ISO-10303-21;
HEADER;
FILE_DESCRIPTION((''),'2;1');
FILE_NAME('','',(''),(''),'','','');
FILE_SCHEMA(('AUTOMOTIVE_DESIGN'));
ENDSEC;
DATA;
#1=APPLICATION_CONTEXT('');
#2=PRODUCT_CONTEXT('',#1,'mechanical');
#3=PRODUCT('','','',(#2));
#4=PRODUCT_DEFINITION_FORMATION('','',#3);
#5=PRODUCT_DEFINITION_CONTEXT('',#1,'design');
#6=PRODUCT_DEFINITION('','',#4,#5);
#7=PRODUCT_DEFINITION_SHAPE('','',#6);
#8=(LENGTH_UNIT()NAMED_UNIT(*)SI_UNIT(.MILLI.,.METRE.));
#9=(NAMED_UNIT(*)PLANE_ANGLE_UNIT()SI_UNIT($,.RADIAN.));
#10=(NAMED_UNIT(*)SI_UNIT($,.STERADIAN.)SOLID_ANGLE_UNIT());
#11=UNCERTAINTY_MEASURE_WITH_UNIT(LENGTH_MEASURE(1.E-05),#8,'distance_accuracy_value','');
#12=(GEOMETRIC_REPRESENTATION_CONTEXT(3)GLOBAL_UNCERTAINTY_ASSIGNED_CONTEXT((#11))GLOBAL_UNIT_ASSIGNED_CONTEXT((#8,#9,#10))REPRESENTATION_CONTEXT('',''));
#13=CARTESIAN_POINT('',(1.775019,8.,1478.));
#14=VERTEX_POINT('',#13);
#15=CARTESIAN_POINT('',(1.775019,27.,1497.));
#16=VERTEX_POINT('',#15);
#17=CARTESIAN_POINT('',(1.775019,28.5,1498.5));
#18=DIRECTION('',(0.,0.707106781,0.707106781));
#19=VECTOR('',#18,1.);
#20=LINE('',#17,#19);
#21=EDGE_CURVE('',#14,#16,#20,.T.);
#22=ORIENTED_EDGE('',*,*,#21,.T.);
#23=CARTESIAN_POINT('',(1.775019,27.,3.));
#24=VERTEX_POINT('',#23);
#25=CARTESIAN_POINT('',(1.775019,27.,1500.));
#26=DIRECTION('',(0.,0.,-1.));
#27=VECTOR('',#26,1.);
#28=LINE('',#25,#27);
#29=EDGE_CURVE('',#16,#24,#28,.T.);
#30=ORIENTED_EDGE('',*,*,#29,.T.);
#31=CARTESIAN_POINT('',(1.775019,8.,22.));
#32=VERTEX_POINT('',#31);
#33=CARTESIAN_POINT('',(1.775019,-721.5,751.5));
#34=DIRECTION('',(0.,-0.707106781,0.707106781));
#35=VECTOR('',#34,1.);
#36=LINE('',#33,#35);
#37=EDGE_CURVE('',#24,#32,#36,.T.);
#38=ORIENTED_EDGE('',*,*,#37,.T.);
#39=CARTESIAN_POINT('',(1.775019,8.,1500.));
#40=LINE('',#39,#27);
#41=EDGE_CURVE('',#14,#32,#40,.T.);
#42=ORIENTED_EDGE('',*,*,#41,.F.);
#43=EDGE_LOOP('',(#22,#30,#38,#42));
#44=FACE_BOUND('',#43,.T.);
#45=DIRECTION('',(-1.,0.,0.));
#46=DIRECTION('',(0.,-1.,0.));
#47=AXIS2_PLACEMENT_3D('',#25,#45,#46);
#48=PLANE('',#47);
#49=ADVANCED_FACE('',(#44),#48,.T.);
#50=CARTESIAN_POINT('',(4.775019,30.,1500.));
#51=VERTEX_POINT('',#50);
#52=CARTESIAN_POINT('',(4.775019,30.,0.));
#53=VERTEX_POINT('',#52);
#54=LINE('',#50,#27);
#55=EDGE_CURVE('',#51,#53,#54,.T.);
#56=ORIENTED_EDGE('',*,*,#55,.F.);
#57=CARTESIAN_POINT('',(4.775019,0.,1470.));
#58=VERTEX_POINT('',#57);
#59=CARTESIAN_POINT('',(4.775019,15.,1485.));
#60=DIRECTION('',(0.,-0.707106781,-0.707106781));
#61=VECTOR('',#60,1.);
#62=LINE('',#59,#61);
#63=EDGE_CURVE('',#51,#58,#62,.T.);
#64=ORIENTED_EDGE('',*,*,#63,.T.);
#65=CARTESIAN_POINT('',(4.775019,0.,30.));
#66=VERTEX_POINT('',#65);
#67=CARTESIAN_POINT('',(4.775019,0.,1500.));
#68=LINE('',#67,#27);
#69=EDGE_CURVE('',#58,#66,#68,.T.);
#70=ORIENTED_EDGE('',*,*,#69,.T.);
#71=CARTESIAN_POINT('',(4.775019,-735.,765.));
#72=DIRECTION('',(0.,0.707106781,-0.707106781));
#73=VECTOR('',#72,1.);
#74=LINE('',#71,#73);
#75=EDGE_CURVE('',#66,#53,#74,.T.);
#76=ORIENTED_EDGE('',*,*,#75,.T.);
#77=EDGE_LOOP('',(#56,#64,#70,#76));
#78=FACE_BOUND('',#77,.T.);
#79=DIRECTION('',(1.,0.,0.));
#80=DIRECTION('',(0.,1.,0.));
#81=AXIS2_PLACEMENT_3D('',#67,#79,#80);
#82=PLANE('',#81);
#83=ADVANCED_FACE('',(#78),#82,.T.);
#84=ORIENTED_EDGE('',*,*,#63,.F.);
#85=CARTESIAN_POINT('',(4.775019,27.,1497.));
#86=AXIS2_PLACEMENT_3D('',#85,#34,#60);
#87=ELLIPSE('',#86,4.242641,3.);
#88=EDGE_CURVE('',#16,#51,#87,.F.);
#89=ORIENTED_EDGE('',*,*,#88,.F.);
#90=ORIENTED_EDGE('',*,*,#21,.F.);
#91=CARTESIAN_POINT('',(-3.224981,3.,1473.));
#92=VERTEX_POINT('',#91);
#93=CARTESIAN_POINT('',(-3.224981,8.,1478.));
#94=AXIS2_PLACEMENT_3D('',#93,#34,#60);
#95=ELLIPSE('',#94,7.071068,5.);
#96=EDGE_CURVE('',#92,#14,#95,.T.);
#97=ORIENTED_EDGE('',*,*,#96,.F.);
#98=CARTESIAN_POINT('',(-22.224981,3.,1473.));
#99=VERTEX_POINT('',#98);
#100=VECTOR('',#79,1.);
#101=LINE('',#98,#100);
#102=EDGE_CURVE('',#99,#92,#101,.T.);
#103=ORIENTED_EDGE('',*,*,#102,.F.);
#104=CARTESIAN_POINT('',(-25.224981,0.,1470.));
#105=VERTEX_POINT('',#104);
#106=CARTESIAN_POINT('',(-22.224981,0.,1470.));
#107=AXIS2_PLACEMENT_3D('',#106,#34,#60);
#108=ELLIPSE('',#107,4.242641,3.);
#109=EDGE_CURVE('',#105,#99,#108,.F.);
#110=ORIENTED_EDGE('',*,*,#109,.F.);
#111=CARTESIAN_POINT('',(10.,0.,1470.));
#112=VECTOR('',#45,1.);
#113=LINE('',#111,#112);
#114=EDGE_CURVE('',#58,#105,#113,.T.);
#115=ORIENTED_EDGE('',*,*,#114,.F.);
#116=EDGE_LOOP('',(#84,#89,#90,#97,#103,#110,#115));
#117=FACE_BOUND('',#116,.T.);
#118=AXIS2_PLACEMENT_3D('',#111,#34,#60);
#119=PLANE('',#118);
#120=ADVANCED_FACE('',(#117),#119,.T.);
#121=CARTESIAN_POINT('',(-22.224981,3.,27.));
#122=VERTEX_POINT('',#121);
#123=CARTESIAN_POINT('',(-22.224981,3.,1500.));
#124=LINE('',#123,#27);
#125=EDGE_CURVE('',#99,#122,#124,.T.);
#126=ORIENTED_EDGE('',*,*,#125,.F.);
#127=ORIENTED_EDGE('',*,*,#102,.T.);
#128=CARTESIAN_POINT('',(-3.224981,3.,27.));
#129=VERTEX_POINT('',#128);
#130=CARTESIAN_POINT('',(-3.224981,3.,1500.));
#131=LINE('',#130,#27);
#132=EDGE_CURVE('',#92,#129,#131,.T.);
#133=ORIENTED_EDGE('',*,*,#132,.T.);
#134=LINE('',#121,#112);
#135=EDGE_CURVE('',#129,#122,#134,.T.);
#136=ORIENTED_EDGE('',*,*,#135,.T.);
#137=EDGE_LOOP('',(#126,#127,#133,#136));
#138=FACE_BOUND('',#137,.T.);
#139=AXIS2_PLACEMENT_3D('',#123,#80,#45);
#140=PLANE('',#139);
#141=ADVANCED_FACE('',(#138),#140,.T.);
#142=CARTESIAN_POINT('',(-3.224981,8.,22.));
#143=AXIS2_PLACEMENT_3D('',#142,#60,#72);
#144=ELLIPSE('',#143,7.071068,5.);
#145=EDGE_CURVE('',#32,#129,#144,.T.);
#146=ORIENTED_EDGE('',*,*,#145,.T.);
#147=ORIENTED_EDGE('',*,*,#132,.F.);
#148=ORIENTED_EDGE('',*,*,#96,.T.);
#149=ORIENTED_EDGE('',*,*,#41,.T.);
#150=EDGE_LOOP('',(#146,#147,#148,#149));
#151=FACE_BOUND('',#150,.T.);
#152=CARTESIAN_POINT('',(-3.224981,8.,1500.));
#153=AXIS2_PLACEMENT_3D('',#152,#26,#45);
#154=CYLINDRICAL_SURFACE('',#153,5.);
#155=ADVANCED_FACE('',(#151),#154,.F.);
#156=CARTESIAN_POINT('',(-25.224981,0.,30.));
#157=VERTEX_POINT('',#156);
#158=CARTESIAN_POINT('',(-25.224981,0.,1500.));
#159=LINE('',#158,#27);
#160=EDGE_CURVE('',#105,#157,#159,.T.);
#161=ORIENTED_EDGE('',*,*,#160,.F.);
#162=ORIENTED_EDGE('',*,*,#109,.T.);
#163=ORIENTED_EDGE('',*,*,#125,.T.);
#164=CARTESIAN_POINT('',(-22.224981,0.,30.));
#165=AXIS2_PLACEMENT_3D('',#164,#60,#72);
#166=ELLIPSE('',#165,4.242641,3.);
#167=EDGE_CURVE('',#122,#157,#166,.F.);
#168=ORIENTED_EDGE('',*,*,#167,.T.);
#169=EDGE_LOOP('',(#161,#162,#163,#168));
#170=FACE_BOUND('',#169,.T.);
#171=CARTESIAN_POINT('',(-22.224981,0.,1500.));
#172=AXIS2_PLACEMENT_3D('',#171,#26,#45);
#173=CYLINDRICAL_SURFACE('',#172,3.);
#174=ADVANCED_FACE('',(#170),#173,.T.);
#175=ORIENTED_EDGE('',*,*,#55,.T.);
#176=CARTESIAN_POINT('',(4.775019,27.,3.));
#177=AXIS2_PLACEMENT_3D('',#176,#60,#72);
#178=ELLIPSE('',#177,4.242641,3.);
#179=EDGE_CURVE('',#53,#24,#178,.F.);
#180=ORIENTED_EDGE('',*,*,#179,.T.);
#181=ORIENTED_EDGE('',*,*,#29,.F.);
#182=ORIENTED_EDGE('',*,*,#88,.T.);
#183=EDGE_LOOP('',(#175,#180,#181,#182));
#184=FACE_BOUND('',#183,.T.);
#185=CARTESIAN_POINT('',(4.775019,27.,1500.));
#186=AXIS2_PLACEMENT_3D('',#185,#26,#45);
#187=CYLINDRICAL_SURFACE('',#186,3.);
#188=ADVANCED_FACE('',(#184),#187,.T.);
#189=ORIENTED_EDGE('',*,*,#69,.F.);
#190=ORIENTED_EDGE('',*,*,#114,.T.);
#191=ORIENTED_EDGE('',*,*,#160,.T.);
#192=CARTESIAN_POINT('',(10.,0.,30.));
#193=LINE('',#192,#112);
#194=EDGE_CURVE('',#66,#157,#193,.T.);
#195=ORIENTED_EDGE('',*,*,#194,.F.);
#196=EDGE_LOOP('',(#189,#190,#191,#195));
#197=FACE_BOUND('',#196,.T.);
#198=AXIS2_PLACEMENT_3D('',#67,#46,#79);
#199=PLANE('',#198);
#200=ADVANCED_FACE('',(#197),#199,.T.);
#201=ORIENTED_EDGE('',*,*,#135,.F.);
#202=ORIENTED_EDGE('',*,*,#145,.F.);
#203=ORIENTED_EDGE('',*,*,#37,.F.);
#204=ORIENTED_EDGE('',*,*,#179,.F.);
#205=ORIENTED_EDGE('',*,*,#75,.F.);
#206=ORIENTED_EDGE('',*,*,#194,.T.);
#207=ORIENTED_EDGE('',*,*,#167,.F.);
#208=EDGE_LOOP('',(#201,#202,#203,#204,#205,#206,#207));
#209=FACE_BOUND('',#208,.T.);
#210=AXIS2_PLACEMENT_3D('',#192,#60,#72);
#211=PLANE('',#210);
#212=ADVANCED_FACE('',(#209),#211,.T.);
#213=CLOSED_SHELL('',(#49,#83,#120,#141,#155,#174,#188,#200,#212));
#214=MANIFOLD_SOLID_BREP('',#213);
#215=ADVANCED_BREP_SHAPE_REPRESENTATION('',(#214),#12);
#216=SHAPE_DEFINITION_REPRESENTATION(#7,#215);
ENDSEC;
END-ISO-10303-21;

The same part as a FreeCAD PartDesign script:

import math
import FreeCAD as App
import Part
import Sketcher

V = App.Vector
Q = App.Units.Quantity


def add_polygon(sketch, points):
    """Adds a closed chain of lines whose ends are joined by coincident constraints."""
    first, n = sketch.GeometryCount, len(points)
    for a, b in zip(points, points[1:] + points[:1]):
        sketch.addGeometry(Part.LineSegment(App.Vector(*a, 0), App.Vector(*b, 0)), False)
    for i in range(n):
        sketch.addConstraint(Sketcher.Constraint("Coincident", first + i, 2, first + (i + 1) % n, 1))

doc = App.newDocument("Part")
body = doc.addObject("PartDesign::Body", "Body")

# Sketch on XY plane
sketch1 = body.newObject("Sketcher::SketchObject", "Sketch")
sketch1.AttachmentSupport = (doc.getObject("XY_Plane"), [""])
sketch1.MapMode = "FlatFace"
sketch1.addGeometry(Part.LineSegment(V(4.8, 30, 0), V(4.8, 0, 0)), False)
sketch1.addGeometry(Part.LineSegment(V(4.8, 0, 0), V(-25.2, 0, 0)), False)
sketch1.addGeometry(Part.ArcOfCircle(Part.Circle(V(-22.2, 0, 0), V(0, 0, 1), 3), math.radians(90), math.radians(180)), False)
sketch1.addGeometry(Part.LineSegment(V(-22.2, 3, 0), V(-3.2, 3, 0)), False)
sketch1.addGeometry(Part.ArcOfCircle(Part.Circle(V(-3.2, 8, 0), V(0, 0, 1), 5), math.radians(-90), math.radians(0)), False)
sketch1.addGeometry(Part.LineSegment(V(1.8, 8, 0), V(1.8, 27, 0)), False)
sketch1.addGeometry(Part.ArcOfCircle(Part.Circle(V(4.8, 27, 0), V(0, 0, 1), 3), math.radians(90), math.radians(180)), False)
sketch1.addConstraint(Sketcher.Constraint("Coincident", 0, 2, 1, 1))
sketch1.addConstraint(Sketcher.Constraint("Coincident", 1, 2, 2, 2))
sketch1.addConstraint(Sketcher.Constraint("Tangent", 2, 1, 3, 1))
sketch1.addConstraint(Sketcher.Constraint("Tangent", 3, 2, 4, 1))
sketch1.addConstraint(Sketcher.Constraint("Tangent", 4, 2, 5, 1))
sketch1.addConstraint(Sketcher.Constraint("Tangent", 5, 2, 6, 2))
sketch1.addConstraint(Sketcher.Constraint("Coincident", 6, 1, 0, 1))
sketch1.addConstraint(Sketcher.Constraint("Vertical", 0))
sketch1.addConstraint(Sketcher.Constraint("Horizontal", 1))
sketch1.addConstraint(Sketcher.Constraint("Horizontal", 3))
sketch1.addConstraint(Sketcher.Constraint("Vertical", 5))
sketch1.addConstraint(Sketcher.Constraint("Equal", 2, 6))
sketch1.addConstraint(Sketcher.Constraint("PointOnObject", 2, 3, -1))
sketch1.addConstraint(Sketcher.Constraint("PointOnObject", 0, 2, -1))
sketch1.addConstraint(Sketcher.Constraint("Vertical", 6, 3, 0, 2))
sketch1.addConstraint(Sketcher.Constraint("Equal", 1, 0))
sketch1.addConstraint(Sketcher.Constraint("Radius", 2, Q("3 mm")))
sketch1.addConstraint(Sketcher.Constraint("Radius", 4, Q("5 mm")))
sketch1.addConstraint(Sketcher.Constraint("DistanceX", 1, 2, 1, 1, Q("30 mm")))
sketch1.addConstraint(Sketcher.Constraint("DistanceX", 2, 3, -1, 1, Q("22.224981 mm")))
pad1 = body.newObject("PartDesign::Pad", "Pad")
pad1.Profile = sketch1
pad1.Length = 1500

# Sketch on YZ plane
sketch2 = body.newObject("Sketcher::SketchObject", "Sketch001")
sketch2.AttachmentSupport = (doc.getObject("YZ_Plane"), [""])
sketch2.MapMode = "FlatFace"
add_polygon(sketch2, [(0, 1500), (0, 1470), (30, 1500)])  # lines 0-2
add_polygon(sketch2, [(0, 30), (0, 0), (30, 0)])  # lines 3-5
sketch2.addConstraint(Sketcher.Constraint("Vertical", 0))
sketch2.addConstraint(Sketcher.Constraint("Horizontal", 2))
sketch2.addConstraint(Sketcher.Constraint("Vertical", 3))
sketch2.addConstraint(Sketcher.Constraint("Horizontal", 4))
sketch2.addConstraint(Sketcher.Constraint("Coincident", 3, 2, -1, 1))
sketch2.addConstraint(Sketcher.Constraint("PointOnObject", 0, 2, -2))
sketch2.addConstraint(Sketcher.Constraint("Perpendicular", 1, 5))
sketch2.addConstraint(Sketcher.Constraint("Vertical", 1, 2, 4, 2))
sketch2.addConstraint(Sketcher.Constraint("Equal", 4, 0))
sketch2.addConstraint(Sketcher.Constraint("DistanceX", 2, 2, 2, 1, Q("30 mm")))
sketch2.addConstraint(Sketcher.Constraint("DistanceY", -1, 1, 0, 2, Q("1470 mm")))
pocket1 = body.newObject("PartDesign::Pocket", "Pocket")
pocket1.Profile = sketch2
pocket1.Type = "ThroughAll"
pocket1.Midplane = True

doc.recompute()
